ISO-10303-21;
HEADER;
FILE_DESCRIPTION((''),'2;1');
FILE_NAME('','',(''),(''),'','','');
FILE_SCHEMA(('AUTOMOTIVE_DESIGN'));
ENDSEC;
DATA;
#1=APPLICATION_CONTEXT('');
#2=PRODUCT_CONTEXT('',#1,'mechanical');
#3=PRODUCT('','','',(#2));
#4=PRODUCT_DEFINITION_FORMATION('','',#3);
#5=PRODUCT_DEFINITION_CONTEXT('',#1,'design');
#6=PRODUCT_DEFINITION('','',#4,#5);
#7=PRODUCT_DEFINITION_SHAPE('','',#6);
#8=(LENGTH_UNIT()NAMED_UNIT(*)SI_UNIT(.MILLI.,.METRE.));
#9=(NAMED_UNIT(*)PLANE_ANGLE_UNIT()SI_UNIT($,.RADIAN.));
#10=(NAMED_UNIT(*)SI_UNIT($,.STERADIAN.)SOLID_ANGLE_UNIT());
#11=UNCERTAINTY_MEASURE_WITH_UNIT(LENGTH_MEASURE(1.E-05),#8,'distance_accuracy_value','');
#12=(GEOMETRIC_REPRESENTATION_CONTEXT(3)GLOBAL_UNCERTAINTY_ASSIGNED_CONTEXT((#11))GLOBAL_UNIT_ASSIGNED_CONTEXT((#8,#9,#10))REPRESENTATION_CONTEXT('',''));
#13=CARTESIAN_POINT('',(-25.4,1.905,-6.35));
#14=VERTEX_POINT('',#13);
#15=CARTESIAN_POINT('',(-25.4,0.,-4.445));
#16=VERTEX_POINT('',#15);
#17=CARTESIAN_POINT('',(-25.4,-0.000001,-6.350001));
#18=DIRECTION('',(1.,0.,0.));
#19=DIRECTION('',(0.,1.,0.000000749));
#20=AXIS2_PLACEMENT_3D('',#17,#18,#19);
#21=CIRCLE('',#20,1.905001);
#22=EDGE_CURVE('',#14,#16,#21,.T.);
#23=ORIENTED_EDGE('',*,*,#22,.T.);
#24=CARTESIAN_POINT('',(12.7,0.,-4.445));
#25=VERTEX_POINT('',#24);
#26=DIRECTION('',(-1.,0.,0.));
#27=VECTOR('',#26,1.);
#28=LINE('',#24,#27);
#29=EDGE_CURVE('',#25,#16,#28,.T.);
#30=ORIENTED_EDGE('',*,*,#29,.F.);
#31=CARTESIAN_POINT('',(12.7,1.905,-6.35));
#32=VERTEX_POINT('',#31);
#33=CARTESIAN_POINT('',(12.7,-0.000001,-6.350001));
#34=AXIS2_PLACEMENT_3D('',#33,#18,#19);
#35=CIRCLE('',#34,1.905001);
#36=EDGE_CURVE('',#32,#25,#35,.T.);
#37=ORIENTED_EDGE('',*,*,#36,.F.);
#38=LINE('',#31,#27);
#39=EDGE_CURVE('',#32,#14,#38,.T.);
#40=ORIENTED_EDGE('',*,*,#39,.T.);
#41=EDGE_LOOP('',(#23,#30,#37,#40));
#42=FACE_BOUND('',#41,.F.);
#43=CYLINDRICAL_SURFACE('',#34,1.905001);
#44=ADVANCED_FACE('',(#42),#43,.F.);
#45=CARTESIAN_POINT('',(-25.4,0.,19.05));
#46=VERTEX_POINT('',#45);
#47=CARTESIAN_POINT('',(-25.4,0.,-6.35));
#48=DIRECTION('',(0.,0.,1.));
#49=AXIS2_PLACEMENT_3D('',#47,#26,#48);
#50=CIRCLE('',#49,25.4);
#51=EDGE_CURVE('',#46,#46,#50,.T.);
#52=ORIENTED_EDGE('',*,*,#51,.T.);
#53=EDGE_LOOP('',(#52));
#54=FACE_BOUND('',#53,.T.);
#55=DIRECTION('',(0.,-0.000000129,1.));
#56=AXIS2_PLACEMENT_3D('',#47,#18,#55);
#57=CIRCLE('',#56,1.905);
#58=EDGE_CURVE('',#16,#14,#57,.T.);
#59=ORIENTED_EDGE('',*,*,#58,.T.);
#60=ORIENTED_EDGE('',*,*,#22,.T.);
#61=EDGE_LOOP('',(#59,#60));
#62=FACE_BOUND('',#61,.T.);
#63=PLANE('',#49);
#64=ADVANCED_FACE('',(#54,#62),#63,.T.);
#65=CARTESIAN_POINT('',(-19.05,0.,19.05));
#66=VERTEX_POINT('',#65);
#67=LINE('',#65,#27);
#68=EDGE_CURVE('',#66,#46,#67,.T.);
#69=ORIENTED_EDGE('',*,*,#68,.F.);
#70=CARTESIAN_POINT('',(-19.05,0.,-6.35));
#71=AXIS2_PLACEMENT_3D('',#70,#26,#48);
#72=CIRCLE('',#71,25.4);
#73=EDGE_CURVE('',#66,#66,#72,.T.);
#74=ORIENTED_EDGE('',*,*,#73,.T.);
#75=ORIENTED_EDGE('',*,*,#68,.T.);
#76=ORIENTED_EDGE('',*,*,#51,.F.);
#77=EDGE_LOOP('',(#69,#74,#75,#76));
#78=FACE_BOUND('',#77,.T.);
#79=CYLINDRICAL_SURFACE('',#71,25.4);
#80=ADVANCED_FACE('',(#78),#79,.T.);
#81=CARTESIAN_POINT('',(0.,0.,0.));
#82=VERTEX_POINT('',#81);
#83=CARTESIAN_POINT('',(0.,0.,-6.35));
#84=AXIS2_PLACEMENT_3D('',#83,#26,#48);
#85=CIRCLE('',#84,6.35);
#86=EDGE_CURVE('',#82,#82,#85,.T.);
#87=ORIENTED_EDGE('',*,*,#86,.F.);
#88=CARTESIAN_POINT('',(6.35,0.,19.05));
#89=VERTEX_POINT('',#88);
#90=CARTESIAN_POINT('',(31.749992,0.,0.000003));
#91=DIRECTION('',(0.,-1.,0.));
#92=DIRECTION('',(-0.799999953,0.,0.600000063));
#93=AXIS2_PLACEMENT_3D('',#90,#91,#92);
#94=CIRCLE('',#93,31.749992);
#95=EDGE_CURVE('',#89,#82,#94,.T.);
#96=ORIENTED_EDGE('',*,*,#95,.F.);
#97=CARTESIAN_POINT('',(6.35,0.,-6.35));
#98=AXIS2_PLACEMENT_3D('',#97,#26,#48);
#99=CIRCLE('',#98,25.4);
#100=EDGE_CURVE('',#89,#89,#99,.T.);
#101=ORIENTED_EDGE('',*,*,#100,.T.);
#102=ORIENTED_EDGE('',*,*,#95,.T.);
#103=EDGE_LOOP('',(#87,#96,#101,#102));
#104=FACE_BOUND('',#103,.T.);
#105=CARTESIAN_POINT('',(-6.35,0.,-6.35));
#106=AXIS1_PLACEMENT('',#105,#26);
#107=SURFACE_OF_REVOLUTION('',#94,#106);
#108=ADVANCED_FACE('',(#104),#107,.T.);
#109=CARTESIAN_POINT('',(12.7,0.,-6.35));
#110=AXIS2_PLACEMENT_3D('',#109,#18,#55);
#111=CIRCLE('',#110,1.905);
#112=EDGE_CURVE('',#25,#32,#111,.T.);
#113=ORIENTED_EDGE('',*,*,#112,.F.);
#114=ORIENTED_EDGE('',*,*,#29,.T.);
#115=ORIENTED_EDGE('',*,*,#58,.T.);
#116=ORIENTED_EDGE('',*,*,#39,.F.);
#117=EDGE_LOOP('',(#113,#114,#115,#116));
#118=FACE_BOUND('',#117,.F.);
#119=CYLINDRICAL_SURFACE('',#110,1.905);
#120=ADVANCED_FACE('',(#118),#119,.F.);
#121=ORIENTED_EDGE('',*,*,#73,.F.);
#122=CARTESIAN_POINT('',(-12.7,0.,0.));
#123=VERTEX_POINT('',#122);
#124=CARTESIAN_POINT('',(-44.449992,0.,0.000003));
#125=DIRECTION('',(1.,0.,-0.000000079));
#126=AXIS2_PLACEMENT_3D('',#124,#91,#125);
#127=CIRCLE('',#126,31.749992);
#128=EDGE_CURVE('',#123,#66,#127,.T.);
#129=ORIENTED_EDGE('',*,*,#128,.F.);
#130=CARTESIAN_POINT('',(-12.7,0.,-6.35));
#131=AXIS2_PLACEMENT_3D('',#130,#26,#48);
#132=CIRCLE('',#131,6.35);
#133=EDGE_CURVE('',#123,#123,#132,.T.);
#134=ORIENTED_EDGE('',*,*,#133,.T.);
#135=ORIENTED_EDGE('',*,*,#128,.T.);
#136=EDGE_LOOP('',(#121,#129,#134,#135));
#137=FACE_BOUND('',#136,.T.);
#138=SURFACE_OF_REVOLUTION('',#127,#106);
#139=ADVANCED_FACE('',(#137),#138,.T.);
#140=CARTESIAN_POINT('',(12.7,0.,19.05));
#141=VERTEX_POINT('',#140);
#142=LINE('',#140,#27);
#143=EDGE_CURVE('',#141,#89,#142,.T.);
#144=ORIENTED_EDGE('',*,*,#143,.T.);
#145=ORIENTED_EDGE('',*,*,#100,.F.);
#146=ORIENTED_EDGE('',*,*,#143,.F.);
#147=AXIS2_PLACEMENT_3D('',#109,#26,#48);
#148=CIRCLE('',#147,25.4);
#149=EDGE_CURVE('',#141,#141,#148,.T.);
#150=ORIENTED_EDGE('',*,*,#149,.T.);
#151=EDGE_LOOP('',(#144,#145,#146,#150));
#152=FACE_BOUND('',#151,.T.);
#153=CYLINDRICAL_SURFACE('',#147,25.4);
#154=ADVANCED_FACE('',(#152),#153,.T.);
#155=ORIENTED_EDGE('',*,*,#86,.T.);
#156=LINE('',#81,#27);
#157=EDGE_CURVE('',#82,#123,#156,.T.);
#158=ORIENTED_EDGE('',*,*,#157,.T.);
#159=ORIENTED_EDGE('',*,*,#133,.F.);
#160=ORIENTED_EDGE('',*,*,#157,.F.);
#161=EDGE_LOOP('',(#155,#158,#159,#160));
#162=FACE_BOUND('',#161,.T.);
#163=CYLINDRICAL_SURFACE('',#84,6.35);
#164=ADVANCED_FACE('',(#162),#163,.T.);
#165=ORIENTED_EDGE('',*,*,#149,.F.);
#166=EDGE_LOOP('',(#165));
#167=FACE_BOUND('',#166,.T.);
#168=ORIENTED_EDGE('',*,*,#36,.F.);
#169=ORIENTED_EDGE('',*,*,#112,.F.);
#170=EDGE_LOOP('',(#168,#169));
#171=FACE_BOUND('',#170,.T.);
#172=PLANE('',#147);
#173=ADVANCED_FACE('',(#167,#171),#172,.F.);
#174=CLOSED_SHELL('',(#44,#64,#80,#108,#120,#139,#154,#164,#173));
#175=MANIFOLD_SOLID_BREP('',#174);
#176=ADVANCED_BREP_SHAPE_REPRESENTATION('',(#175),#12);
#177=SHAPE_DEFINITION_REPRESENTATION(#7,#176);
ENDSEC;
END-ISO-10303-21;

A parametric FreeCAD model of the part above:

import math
import FreeCAD as App
import Part
import Sketcher
Q = App.Units.Quantity

doc = App.newDocument("Part")
body = doc.addObject("PartDesign::Body", "Body")

sketch1 = body.newObject("Sketcher::SketchObject", "Sketch")
sketch1.AttachmentSupport = (doc.getObject("XZ_Plane"), [""])
sketch1.MapMode = "FlatFace"
sketch1.addGeometry([
    Part.ArcOfCircle(Part.Circle(App.Vector(32, 0, 0), App.Vector(0, 0, 1), 32), math.radians(143), math.radians(180)),
    Part.LineSegment(App.Vector(0, 0, 0), App.Vector(-13, 0, 0)),
    Part.ArcOfCircle(Part.Circle(App.Vector(-44, 0, 0), App.Vector(0, 0, 1), 32), math.radians(0), math.radians(37)),
    Part.LineSegment(App.Vector(-19, 19, 0), App.Vector(-25, 19, 0)),
    Part.LineSegment(App.Vector(-25, 19, 0), App.Vector(-25, -6, 0)),
    Part.LineSegment(App.Vector(-25, -6, 0), App.Vector(13, -6, 0)),
    Part.LineSegment(App.Vector(13, -6, 0), App.Vector(13, 19, 0)),
    Part.LineSegment(App.Vector(13, 19, 0), App.Vector(6, 19, 0)),
], False)
sketch1.addGeometry(Part.LineSegment(App.Vector(32, -6, 0), App.Vector(-44, -6, 0)), True)
sketch1.addConstraint([
    Sketcher.Constraint("Coincident", 0, 2, 1, 1),
    Sketcher.Constraint("Coincident", 1, 2, 2, 1),
    Sketcher.Constraint("Coincident", 2, 2, 3, 1),
    Sketcher.Constraint("Coincident", 3, 2, 4, 1),
    Sketcher.Constraint("Coincident", 4, 2, 5, 1),
    Sketcher.Constraint("Coincident", 5, 2, 6, 1),
    Sketcher.Constraint("Coincident", 6, 2, 7, 1),
    Sketcher.Constraint("Coincident", 7, 2, 0, 1),
    Sketcher.Constraint("Horizontal", 1),
    Sketcher.Constraint("Horizontal", 3),
    Sketcher.Constraint("Vertical", 4),
    Sketcher.Constraint("Horizontal", 5),
    Sketcher.Constraint("Vertical", 6),
    Sketcher.Constraint("Horizontal", 7),
    Sketcher.Constraint("Horizontal", 8),
    Sketcher.Constraint("Coincident", 0, 2, -1, 1),
    Sketcher.Constraint("Equal", 0, 2),
    Sketcher.Constraint("Horizontal", 0, 3, 2, 3),
    Sketcher.Constraint("Horizontal", 3, 2, 6, 2),
    Sketcher.Constraint("Horizontal", 5, 2, 8, 1),
    Sketcher.Constraint("Vertical", 0, 3, 8, 1),
    Sketcher.Constraint("Vertical", 2, 3, 8, 2),
    Sketcher.Constraint("Equal", 3, 7),
    Sketcher.Constraint("DistanceY", 4, 2, 4, 1, Q("1 in")),
    Sketcher.Constraint("DistanceX", 1, 2, 1, 1, Q("0.5 in")),
    Sketcher.Constraint("DistanceX", 5, 1, 5, 2, Q("1.5 in")),
    Sketcher.Constraint("DistanceX", 2, 2, 7, 2, Q("1 in")),
    Sketcher.Constraint("DistanceY", -1, 1, 2, 2, Q("0.75 in")),
    Sketcher.Constraint("DistanceY", 2, 3, 2, 2, Q("0.7499999 in")),
])
revolution = body.newObject("PartDesign::Revolution", "Revolution")
revolution.Profile = sketch1
revolution.ReferenceAxis = (sketch1, ["Axis0"])
revolution.Angle = 360

sketch2 = body.newObject("Sketcher::SketchObject", "Sketch001")
sketch2.AttachmentSupport = (doc.getObject("YZ_Plane"), [""])
sketch2.MapMode = "FlatFace"
sketch2.AttachmentOffset = App.Placement(App.Vector(0, 0, 0.5 * 25.4), App.Rotation())
sketch2.addGeometry([
    Part.ArcOfCircle(Part.Circle(App.Vector(0, -6.3, 0), App.Vector(0, 0, 1), 1.9), math.radians(90), math.radians(360)),
    Part.ArcOfCircle(Part.Circle(App.Vector(0, -6.4, 0), App.Vector(0, 0, 1), 1.9), math.radians(0), math.radians(90)),
], False)
sketch2.addConstraint([
    Sketcher.Constraint("Tangent", 0, 1, 1, 2),
    Sketcher.Constraint("Coincident", 1, 1, 0, 2),
    Sketcher.Constraint("PointOnObject", 0, 3, -2),
    Sketcher.Constraint("PointOnObject", 0, 1, -2),
    Sketcher.Constraint("Horizontal", 0, 3, 1, 1),
    Sketcher.Constraint("Radius", 0, Q("0.075 in")),
    Sketcher.Constraint("DistanceY", 0, 3, -1, 1, Q("0.25 in")),
])
pocket1 = body.newObject("PartDesign::Pocket", "Pocket")
pocket1.Profile = sketch2
pocket1.Length = Q("4 in")

doc.recompute()
